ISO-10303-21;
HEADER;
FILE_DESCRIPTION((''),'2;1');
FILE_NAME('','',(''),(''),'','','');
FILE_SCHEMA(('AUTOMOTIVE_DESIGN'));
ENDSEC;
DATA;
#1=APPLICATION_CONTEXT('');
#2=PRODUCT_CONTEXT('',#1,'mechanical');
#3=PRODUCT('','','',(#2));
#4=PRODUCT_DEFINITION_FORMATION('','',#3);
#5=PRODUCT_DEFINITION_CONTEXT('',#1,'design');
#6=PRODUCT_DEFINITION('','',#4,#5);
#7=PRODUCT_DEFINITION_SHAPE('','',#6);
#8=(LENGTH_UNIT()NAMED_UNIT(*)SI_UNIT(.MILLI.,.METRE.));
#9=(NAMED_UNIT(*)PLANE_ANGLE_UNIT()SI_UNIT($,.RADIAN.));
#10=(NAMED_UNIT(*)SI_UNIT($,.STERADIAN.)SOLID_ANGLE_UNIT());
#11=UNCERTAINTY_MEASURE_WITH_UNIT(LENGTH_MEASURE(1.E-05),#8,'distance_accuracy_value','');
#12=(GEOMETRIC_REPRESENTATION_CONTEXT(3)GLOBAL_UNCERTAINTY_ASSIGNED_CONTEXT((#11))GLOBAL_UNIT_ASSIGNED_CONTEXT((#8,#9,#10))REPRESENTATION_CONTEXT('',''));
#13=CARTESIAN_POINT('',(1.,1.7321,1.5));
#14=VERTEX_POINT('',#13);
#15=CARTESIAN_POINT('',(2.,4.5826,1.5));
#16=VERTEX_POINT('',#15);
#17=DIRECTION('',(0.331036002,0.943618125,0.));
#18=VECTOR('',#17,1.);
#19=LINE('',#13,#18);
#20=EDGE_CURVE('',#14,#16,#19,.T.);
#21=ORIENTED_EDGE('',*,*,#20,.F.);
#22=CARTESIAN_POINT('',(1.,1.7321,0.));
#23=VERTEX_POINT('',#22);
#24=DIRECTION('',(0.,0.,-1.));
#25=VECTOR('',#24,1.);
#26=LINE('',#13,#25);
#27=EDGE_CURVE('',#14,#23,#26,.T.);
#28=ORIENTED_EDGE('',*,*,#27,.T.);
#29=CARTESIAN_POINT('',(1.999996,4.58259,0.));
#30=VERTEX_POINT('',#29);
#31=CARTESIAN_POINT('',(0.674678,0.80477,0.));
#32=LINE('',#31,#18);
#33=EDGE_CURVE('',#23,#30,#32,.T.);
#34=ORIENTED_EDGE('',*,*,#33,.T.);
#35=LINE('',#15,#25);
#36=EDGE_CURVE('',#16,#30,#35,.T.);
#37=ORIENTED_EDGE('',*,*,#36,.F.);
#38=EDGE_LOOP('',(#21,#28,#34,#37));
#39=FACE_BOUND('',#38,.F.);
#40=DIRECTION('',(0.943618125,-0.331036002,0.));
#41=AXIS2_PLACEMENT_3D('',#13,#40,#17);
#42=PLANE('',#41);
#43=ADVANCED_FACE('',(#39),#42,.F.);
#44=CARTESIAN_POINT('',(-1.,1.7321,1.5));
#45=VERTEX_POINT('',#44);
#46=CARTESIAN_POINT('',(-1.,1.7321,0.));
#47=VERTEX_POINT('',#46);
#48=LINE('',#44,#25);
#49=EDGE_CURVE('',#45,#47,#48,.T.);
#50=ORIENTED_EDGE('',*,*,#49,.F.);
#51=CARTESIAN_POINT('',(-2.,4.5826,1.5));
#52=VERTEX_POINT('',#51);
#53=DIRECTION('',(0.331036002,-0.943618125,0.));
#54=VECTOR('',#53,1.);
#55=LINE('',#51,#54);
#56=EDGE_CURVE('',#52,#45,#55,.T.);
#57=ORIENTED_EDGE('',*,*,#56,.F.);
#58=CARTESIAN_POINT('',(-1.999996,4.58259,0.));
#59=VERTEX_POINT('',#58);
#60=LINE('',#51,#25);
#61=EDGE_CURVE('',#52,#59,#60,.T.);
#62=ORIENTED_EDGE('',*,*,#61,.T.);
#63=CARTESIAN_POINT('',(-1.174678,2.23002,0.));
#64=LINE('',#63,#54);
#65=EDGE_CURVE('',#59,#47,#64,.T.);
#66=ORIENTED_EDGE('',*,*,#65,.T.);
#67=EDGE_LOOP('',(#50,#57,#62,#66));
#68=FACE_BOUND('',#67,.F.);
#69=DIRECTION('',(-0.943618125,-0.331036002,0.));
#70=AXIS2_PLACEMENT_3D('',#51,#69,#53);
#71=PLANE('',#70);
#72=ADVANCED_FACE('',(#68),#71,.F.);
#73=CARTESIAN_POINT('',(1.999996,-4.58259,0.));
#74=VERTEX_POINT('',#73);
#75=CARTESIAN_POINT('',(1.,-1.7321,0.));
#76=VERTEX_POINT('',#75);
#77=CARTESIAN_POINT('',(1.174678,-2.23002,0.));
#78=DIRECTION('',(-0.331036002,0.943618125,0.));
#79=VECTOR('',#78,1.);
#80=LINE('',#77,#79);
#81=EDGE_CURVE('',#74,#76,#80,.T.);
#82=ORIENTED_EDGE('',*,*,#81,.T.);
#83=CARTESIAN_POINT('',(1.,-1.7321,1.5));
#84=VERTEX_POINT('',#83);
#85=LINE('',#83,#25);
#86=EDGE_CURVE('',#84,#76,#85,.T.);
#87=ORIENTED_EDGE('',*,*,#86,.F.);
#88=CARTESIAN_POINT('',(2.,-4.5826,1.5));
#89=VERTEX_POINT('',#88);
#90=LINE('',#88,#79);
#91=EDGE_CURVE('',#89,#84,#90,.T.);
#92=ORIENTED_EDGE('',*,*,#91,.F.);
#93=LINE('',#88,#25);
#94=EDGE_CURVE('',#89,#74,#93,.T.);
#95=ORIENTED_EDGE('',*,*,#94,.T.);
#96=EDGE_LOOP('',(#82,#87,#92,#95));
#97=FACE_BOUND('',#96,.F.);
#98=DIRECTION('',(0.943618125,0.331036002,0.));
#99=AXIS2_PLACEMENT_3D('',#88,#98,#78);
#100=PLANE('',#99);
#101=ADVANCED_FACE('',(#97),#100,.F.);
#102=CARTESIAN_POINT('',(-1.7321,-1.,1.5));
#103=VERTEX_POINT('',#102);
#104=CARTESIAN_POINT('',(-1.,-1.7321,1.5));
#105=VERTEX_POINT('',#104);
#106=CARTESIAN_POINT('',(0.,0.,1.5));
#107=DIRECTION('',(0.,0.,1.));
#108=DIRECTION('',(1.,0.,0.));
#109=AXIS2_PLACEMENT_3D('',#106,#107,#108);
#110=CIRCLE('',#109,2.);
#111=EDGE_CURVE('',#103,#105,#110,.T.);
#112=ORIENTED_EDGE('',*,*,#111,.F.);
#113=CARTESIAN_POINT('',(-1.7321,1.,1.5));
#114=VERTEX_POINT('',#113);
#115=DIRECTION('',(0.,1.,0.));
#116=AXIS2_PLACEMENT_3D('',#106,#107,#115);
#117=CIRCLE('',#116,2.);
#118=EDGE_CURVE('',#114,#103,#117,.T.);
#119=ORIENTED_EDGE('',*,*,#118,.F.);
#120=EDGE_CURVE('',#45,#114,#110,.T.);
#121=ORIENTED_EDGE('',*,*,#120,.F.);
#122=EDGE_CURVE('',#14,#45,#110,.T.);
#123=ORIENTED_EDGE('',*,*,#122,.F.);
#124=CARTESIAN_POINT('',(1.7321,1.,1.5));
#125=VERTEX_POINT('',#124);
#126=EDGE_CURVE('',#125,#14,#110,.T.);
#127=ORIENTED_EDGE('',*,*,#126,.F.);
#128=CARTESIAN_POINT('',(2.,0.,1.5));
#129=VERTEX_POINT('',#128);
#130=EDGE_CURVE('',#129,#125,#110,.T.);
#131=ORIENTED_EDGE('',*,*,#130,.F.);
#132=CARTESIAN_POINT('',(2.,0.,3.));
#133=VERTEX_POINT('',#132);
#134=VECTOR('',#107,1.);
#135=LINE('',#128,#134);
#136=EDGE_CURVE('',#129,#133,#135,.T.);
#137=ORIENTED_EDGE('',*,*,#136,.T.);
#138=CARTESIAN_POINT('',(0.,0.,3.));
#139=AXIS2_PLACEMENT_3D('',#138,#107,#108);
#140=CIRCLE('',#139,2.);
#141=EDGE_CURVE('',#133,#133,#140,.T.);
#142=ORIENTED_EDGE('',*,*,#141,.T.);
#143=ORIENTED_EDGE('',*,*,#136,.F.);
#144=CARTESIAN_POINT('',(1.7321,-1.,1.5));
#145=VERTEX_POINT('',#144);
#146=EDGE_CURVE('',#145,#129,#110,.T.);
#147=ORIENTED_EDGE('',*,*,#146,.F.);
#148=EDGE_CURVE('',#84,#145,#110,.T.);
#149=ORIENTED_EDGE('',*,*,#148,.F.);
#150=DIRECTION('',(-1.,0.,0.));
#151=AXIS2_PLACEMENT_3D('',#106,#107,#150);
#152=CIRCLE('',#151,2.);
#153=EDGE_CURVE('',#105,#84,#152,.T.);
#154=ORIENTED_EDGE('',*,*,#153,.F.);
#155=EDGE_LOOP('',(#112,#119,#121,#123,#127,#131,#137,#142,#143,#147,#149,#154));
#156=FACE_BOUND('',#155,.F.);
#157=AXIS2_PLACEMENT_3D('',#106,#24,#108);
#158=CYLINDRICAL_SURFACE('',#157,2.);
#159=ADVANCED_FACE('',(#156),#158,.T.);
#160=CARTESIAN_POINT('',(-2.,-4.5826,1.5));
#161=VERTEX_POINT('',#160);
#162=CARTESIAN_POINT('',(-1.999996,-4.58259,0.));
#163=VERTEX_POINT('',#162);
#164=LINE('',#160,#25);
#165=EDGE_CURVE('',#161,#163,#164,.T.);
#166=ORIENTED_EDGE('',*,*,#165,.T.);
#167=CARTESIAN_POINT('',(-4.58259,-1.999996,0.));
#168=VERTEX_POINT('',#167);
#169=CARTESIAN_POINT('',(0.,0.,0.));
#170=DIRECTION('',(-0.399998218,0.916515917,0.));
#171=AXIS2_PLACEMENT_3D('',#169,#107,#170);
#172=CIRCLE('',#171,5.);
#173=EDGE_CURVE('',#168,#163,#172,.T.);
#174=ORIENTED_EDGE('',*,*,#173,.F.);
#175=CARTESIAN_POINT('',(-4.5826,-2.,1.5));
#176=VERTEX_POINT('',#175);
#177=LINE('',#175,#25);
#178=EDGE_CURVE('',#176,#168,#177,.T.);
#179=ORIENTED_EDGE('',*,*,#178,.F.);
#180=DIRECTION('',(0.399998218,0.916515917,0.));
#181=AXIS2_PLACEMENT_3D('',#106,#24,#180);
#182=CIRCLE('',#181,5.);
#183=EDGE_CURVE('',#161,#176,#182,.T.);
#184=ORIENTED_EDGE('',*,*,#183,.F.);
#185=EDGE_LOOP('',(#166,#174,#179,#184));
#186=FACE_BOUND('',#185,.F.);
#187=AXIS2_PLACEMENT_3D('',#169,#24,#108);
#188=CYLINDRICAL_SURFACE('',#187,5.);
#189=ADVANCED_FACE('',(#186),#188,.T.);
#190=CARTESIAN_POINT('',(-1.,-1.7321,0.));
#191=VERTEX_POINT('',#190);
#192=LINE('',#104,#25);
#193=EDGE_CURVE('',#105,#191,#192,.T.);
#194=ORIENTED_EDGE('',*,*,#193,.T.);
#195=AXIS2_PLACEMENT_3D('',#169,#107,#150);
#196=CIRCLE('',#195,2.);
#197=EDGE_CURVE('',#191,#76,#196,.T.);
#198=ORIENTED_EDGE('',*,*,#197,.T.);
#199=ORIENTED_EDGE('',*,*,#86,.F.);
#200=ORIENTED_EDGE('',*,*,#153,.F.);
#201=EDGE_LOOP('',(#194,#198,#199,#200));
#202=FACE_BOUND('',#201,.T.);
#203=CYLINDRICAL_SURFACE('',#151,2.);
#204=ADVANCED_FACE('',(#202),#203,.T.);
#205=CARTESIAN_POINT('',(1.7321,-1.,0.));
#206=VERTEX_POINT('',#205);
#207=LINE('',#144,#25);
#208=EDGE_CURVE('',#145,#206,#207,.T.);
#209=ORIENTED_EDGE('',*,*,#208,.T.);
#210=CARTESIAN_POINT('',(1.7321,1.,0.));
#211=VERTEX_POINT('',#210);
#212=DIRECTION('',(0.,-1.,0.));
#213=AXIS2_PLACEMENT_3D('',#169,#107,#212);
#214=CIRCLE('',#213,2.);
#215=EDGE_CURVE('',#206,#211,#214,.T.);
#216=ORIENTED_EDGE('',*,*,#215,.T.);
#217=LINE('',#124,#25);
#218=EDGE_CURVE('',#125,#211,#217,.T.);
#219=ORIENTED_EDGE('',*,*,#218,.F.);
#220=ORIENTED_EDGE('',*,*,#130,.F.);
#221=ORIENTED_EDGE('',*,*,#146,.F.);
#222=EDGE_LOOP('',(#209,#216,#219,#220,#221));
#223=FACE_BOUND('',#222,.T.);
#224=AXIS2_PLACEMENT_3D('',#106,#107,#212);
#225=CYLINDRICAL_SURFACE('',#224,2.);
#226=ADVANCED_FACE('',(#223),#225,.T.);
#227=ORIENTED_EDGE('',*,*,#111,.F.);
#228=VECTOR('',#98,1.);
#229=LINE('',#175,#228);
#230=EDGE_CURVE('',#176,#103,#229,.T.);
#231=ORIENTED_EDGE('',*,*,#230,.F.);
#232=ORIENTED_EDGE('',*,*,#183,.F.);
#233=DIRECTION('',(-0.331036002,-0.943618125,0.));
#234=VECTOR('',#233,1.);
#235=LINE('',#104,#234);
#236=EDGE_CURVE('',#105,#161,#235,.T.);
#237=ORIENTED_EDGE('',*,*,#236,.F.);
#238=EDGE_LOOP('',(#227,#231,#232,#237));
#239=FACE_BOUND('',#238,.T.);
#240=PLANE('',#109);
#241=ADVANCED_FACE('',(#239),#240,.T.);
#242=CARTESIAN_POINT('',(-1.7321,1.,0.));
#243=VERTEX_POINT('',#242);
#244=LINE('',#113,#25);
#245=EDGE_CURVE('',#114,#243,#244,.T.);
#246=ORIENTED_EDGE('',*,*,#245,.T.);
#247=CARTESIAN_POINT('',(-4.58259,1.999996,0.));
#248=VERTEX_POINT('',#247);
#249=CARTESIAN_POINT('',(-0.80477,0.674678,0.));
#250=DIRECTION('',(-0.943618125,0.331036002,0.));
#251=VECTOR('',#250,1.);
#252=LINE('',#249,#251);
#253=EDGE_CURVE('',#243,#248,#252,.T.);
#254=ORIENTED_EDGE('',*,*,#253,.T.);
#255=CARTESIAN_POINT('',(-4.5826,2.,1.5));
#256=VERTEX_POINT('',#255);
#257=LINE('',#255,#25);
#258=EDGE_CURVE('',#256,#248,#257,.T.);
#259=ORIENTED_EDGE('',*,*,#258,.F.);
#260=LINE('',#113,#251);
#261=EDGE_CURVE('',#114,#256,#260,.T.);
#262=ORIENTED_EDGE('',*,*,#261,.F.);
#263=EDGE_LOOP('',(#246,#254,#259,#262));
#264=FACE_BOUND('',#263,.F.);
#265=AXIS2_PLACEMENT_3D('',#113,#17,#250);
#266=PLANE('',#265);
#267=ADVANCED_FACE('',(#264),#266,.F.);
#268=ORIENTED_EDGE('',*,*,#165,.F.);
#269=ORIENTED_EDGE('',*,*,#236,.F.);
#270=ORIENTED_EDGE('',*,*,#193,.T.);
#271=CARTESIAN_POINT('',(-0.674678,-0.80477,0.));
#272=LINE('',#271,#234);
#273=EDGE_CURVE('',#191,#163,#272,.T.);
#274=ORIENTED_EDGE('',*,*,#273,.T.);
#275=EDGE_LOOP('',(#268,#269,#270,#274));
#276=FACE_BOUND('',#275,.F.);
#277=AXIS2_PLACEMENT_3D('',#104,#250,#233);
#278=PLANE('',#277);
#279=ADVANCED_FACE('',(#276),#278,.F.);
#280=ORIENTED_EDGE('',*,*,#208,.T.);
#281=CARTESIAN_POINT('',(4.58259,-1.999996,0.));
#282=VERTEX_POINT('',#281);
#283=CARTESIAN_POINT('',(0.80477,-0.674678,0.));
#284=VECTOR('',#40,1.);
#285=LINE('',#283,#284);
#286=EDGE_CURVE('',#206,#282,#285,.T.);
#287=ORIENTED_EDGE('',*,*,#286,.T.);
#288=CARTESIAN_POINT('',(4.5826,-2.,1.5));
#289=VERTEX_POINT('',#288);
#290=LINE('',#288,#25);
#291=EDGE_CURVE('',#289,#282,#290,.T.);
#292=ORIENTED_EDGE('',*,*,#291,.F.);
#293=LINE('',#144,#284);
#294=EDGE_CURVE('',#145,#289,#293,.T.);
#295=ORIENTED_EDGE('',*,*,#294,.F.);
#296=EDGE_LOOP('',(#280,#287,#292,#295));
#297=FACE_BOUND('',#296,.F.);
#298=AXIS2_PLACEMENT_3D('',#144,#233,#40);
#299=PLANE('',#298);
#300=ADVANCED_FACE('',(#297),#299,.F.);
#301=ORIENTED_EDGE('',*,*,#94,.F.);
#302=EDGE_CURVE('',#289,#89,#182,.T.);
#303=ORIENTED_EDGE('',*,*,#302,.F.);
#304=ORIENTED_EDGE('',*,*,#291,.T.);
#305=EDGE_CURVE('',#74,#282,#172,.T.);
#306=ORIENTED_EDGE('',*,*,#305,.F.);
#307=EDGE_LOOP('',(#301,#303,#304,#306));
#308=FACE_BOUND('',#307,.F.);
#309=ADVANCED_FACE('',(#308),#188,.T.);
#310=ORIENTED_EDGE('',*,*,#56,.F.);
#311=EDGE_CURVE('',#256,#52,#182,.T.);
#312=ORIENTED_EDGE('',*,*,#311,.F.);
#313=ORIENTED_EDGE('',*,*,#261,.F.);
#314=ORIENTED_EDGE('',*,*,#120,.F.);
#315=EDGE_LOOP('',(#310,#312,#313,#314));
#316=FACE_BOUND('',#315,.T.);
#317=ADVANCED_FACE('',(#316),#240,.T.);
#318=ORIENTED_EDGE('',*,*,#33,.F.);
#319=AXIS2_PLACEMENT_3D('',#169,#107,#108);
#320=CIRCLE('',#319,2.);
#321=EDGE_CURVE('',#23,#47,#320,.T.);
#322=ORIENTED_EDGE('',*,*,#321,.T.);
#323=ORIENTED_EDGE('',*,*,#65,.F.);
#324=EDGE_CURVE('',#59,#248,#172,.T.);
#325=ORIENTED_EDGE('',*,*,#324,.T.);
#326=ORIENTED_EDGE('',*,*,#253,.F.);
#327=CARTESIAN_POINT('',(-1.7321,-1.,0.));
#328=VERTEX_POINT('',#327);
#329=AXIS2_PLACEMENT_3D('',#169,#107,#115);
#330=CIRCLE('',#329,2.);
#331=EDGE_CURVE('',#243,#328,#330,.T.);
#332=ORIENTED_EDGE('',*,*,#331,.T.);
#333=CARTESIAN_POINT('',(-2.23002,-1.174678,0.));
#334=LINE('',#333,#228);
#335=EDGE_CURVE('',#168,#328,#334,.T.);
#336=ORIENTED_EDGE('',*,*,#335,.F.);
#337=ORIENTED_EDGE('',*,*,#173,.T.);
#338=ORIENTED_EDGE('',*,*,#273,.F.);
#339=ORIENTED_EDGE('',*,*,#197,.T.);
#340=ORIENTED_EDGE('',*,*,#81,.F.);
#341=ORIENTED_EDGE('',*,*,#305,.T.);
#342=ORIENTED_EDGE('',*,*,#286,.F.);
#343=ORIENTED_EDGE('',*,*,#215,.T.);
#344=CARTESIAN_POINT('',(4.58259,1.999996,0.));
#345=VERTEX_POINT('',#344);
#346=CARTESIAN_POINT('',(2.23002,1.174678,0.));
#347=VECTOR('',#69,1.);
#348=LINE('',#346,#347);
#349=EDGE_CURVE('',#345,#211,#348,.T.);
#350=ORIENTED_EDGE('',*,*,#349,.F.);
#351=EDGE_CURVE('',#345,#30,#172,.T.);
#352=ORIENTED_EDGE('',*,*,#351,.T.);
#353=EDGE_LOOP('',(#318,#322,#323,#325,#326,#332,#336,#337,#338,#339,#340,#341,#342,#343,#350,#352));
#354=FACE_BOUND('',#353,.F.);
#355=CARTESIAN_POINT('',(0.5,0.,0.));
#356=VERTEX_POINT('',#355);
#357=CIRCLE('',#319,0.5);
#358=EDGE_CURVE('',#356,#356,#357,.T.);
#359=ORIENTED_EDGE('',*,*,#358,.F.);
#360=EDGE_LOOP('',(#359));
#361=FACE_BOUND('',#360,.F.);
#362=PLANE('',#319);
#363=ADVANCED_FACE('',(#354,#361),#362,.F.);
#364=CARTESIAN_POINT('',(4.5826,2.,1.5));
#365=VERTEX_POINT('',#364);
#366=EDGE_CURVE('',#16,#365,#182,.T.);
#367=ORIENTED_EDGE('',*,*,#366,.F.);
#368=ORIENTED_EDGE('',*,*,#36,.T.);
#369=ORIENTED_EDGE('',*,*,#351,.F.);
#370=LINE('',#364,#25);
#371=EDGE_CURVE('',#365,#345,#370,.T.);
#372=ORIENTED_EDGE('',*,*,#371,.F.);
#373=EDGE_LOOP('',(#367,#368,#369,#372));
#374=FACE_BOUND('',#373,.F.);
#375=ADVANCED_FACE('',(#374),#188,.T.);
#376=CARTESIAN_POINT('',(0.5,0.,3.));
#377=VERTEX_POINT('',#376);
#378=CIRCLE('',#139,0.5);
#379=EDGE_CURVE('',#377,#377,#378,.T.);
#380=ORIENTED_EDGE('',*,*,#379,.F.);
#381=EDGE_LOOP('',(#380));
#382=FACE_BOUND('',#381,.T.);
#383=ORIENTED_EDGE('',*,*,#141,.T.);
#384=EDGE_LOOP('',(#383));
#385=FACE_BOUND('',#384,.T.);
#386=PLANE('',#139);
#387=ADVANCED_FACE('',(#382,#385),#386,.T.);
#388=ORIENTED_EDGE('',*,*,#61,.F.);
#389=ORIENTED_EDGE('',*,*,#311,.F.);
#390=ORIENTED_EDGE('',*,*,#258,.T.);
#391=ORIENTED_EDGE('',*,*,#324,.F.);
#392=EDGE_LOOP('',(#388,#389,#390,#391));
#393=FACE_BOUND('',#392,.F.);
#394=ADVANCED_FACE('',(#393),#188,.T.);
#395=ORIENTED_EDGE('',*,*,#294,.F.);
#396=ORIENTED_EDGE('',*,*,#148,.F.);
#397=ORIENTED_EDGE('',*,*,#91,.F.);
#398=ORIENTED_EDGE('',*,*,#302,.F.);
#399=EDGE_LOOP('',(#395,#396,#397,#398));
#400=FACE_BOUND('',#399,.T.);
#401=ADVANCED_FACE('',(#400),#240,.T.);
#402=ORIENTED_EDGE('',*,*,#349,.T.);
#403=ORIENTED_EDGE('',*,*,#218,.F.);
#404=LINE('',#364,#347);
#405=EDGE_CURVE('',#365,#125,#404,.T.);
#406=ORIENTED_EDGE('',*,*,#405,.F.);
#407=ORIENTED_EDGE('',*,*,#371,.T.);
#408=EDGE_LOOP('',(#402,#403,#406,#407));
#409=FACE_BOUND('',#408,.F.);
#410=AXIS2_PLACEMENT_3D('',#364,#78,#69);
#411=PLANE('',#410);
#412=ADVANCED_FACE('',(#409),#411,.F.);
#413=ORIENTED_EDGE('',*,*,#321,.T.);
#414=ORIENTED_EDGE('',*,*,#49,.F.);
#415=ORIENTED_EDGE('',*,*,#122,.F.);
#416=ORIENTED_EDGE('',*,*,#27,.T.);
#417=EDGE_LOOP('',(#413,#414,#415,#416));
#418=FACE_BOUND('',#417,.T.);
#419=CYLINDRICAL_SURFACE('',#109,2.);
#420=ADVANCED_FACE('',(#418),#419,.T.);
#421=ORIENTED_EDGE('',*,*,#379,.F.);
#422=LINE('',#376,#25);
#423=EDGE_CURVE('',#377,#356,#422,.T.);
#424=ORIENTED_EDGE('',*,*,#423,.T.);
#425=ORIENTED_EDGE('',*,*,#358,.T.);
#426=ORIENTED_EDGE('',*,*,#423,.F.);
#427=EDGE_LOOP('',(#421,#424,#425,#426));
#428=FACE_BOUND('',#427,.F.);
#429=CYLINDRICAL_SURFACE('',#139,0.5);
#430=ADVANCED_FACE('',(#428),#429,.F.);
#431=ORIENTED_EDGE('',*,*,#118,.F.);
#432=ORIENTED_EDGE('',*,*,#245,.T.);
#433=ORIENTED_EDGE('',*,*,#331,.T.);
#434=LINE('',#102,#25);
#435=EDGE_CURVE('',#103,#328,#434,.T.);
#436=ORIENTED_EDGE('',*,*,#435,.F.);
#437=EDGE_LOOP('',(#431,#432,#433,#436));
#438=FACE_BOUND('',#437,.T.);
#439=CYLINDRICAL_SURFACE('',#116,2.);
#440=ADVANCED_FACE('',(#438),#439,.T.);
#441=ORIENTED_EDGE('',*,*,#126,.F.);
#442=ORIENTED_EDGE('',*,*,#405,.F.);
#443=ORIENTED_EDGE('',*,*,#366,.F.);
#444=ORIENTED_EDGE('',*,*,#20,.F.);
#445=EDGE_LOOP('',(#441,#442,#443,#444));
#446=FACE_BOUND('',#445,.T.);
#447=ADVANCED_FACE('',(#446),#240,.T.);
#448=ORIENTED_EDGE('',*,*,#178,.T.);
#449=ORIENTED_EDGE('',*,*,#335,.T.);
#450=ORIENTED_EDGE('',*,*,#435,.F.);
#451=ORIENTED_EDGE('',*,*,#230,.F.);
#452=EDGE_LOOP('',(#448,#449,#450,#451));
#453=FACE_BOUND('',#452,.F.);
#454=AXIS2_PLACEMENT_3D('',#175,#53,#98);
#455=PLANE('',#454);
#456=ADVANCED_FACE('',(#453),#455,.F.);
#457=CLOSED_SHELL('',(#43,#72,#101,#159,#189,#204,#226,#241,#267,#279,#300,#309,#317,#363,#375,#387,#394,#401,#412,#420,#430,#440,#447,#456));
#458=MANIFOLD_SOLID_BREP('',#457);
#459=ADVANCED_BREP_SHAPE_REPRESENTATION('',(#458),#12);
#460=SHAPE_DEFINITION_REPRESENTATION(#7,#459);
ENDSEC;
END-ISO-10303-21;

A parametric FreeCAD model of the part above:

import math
import FreeCAD as App
import Part
import Sketcher

doc = App.newDocument("Part")
body = doc.addObject("PartDesign::Body", "Body")

# Sketch on XY plane
sketch1 = body.newObject("Sketcher::SketchObject", "Sketch")
sketch1.AttachmentSupport = (doc.getObject("XY_Plane"), [""])
sketch1.MapMode = "FlatFace"
sketch1.addGeometry(Part.Circle(App.Vector(0, 0, 0), App.Vector(0, 0, 1), 5), False)
sketch1.addConstraint([
    Sketcher.Constraint("Coincident", 0, 3, -1, 1),
    Sketcher.Constraint("Diameter", 0, 10.0),
])
pad1 = body.newObject("PartDesign::Pad", "Pad")
pad1.Profile = sketch1
pad1.Length = 1.5

# Sketch on XY plane
sketch2 = body.newObject("Sketcher::SketchObject", "Sketch001")
sketch2.AttachmentSupport = (doc.getObject("XY_Plane"), [""])
sketch2.MapMode = "FlatFace"
sketch2.AttachmentOffset = App.Placement(App.Vector(0, 0, 1.5), App.Rotation())
sketch2.addGeometry(Part.Circle(App.Vector(0, 0, 0), App.Vector(0, 0, 1), 2), False)
sketch2.addConstraint([
    Sketcher.Constraint("Coincident", 0, 3, -1, 1),
    Sketcher.Constraint("Diameter", 0, 4.0),
])
pad2 = body.newObject("PartDesign::Pad", "Pad001")
pad2.Profile = sketch2
pad2.Length = 1.5

# Sketch on XY plane
sketch3 = body.newObject("Sketcher::SketchObject", "Sketch002")
sketch3.AttachmentSupport = (doc.getObject("XY_Plane"), [""])
sketch3.MapMode = "FlatFace"
sketch3.AttachmentOffset = App.Placement(App.Vector(0, 0, 1.5), App.Rotation())
sketch3.addGeometry([
    Part.ArcOfCircle(Part.Circle(App.Vector(0, 0, 0), App.Vector(0, 0, 1), 2), math.radians(60), math.radians(120)),
    Part.LineSegment(App.Vector(1, 1.7, 0), App.Vector(2, 4.6, 0)),
    Part.ArcOfCircle(Part.Circle(App.Vector(0, 0, 0), App.Vector(0, 0, 1), 5), math.radians(66), math.radians(114)),
    Part.LineSegment(App.Vector(-2, 4.6, 0), App.Vector(-1, 1.7, 0)),
], False)
sketch3.addConstraint([
    Sketcher.Constraint("Coincident", 0, 1, 1, 1),
    Sketcher.Constraint("Coincident", 1, 2, 2, 1),
    Sketcher.Constraint("Coincident", 2, 2, 3, 1),
    Sketcher.Constraint("Coincident", 3, 2, 0, 2),
    Sketcher.Constraint("Coincident", 0, 3, -1, 1),
    Sketcher.Constraint("Coincident", 2, 3, -1, 1),
    Sketcher.Constraint("Horizontal", 1, 2, 2, 2),
    Sketcher.Constraint("Horizontal", 0, 1, 3, 2),
    Sketcher.Constraint("Radius", 0, 2.0),
    Sketcher.Constraint("Radius", 2, 5.0),
    Sketcher.Constraint("DistanceX", -1, 1, 0, 1, 1.0),
    Sketcher.Constraint("DistanceX", -1, 1, 1, 2, 2.0),
])
pocket1 = body.newObject("PartDesign::Pocket", "Pocket")
pocket1.Profile = sketch3
pocket1.Type = "ThroughAll"
doc.recompute()

polarpattern = body.newObject("PartDesign::PolarPattern", "PolarPattern")
polarpattern.Originals = [pocket1]
polarpattern.Axis = (doc.getObject("Z_Axis"), [""])
polarpattern.Angle = 360
polarpattern.Occurrences = 4
body.Tip = polarpattern

# Sketch on XY plane
sketch4 = body.newObject("Sketcher::SketchObject", "Sketch003")
sketch4.AttachmentSupport = (doc.getObject("XY_Plane"), [""])
sketch4.MapMode = "FlatFace"
sketch4.AttachmentOffset = App.Placement(App.Vector(0, 0, 3), App.Rotation())
sketch4.addGeometry(Part.Circle(App.Vector(0, 0, 0), App.Vector(0, 0, 1), 0.5), False)
sketch4.addConstraint([
    Sketcher.Constraint("Coincident", 0, 3, -1, 1),
    Sketcher.Constraint("Diameter", 0, 1.0),
])
pocket2 = body.newObject("PartDesign::Pocket", "Pocket001")
pocket2.Profile = sketch4
pocket2.Type = "ThroughAll"

doc.recompute()
